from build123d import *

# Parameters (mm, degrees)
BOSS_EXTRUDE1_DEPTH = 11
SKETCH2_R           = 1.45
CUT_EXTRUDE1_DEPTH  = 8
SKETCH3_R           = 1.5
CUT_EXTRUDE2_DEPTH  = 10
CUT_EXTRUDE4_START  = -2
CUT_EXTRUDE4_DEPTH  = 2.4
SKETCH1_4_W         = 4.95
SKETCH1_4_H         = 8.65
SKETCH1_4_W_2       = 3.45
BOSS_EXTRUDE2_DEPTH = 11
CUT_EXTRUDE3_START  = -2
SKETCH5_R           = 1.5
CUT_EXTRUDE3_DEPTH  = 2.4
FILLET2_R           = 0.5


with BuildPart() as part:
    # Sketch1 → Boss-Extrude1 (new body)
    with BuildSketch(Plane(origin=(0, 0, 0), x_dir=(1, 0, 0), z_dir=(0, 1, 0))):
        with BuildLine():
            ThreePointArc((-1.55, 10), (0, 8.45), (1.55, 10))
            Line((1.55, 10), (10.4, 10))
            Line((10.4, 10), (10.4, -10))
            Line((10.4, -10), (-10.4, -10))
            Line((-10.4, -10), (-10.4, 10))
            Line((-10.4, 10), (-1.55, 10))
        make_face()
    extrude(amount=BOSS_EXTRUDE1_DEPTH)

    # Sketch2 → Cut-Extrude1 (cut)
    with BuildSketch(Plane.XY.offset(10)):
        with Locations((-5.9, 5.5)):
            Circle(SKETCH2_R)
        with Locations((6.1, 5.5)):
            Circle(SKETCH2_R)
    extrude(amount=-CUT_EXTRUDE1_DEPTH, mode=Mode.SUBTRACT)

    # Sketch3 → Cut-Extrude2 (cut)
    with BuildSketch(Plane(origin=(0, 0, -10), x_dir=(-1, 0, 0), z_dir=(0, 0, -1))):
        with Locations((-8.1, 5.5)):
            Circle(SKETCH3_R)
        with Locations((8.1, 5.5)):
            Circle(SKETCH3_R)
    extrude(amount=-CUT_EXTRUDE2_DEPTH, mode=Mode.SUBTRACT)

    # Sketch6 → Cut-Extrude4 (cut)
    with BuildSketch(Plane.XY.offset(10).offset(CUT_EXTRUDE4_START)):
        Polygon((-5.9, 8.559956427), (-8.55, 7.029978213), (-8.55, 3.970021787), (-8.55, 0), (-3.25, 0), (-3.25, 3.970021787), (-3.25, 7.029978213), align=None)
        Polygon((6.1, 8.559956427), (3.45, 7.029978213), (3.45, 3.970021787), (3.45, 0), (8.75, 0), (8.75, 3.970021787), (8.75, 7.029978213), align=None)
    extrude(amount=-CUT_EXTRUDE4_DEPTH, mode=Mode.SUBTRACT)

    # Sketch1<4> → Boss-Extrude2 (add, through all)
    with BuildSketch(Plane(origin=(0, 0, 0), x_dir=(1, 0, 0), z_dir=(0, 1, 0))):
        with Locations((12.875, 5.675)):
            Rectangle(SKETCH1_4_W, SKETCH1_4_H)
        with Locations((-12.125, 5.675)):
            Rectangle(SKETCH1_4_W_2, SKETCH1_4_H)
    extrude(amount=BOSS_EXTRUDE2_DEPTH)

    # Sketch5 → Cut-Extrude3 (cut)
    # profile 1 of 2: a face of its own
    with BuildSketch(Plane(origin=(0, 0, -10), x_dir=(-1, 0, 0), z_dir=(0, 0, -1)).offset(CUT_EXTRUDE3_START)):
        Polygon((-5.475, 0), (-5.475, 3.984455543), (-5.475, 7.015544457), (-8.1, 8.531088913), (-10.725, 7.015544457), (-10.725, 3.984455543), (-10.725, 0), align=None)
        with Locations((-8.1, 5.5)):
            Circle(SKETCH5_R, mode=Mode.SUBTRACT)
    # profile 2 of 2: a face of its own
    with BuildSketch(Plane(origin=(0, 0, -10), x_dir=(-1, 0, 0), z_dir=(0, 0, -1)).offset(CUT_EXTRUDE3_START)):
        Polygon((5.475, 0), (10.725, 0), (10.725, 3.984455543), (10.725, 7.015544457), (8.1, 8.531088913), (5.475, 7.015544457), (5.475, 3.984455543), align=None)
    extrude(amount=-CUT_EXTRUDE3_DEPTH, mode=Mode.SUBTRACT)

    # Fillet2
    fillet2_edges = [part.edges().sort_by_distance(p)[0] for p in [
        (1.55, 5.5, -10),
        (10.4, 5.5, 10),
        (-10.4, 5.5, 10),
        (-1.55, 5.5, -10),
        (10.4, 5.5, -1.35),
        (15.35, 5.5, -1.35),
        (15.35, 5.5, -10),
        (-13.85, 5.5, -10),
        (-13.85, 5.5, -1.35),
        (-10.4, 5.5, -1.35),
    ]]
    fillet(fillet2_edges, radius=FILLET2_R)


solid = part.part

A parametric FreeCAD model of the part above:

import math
import FreeCAD as App
import Part
import Sketcher
from FreeCAD import Vector
Q = App.Units.Quantity


def edges_at(feature, points):
    """Names of the edges that pass closest to the given points."""
    edges = feature.Shape.Edges
    near = lambda p: min(range(len(edges)), key=lambda i: edges[i].distToShape(Part.Vertex(*p))[0])
    return sorted({f"Edge{near(p) + 1}" for p in points})


def add_polygon(sketch, points):
    """Adds a closed chain of lines whose ends are joined by coincident constraints."""
    first, n = sketch.GeometryCount, len(points)
    for a, b in zip(points, points[1:] + points[:1]):
        sketch.addGeometry(Part.LineSegment(App.Vector(*a, 0), App.Vector(*b, 0)), False)
    for i in range(n):
        sketch.addConstraint(Sketcher.Constraint("Coincident", first + i, 2, first + (i + 1) % n, 1))

doc = App.newDocument("Part")
body = doc.addObject("PartDesign::Body", "Body")

sketch1 = body.newObject("Sketcher::SketchObject", "Sketch")
sketch1.AttachmentSupport = (doc.getObject("XZ_Plane"), [""])
sketch1.MapMode = "FlatFace"
sketch1.addGeometry(Part.ArcOfCircle(Part.Circle(Vector(0, -10, 0), Vector(0, 0, 1), 1.55), math.radians(0), math.radians(180)), False)
sketch1.addGeometry(Part.LineSegment(Vector(-1.55, -10, 0), Vector(-10.4, -10, 0)), False)
sketch1.addGeometry(Part.LineSegment(Vector(-10.4, -10, 0), Vector(-10.4, 10, 0)), False)
sketch1.addGeometry(Part.LineSegment(Vector(-10.4, 10, 0), Vector(10.4, 10, 0)), False)
sketch1.addGeometry(Part.LineSegment(Vector(10.4, 10, 0), Vector(10.4, -10, 0)), False)
sketch1.addGeometry(Part.LineSegment(Vector(10.4, -10, 0), Vector(1.55, -10, 0)), False)
sketch1.addConstraint(Sketcher.Constraint("Coincident", 0, 2, 1, 1))
sketch1.addConstraint(Sketcher.Constraint("Coincident", 1, 2, 2, 1))
sketch1.addConstraint(Sketcher.Constraint("Coincident", 2, 2, 3, 1))
sketch1.addConstraint(Sketcher.Constraint("Coincident", 3, 2, 4, 1))
sketch1.addConstraint(Sketcher.Constraint("Coincident", 4, 2, 5, 1))
sketch1.addConstraint(Sketcher.Constraint("Coincident", 5, 2, 0, 1))
sketch1.addConstraint(Sketcher.Constraint("Horizontal", 1))
sketch1.addConstraint(Sketcher.Constraint("Vertical", 2))
sketch1.addConstraint(Sketcher.Constraint("Horizontal", 3))
sketch1.addConstraint(Sketcher.Constraint("Vertical", 4))
sketch1.addConstraint(Sketcher.Constraint("Horizontal", 5))
sketch1.addConstraint(Sketcher.Constraint("Symmetric", 1, 2, 3, 2, -1, 1))
sketch1.addConstraint(Sketcher.Constraint("Symmetric", 0, 2, 5, 2, -2))
sketch1.addConstraint(Sketcher.Constraint("DistanceY", 2, 1, 2, 2, 20.0))
sketch1.addConstraint(Sketcher.Constraint("Radius", 0, 1.55))
sketch1.addConstraint(Sketcher.Constraint("DistanceX", 3, 1, 3, 2, 20.8))
sketch1.addConstraint(Sketcher.Constraint("DistanceY", 0, 3, -1, 1, 10.0))
pad1 = body.newObject("PartDesign::Pad", "Pad")
pad1.Profile = sketch1
pad1.Length = 11
pad1.Reversed = True

sketch2 = body.newObject("Sketcher::SketchObject", "Sketch001")
sketch2.AttachmentSupport = (doc.getObject("XY_Plane"), [""])
sketch2.MapMode = "FlatFace"
sketch2.AttachmentOffset = App.Placement(Vector(0, 0, 10), App.Rotation())
sketch2.addGeometry(Part.Circle(Vector(-5.9, 5.5, 0), Vector(0, 0, 1), 1.45), False)
sketch2.addGeometry(Part.Circle(Vector(6.1, 5.5, 0), Vector(0, 0, 1), 1.45), False)
sketch2.addConstraint(Sketcher.Constraint("Equal", 0, 1))
sketch2.addConstraint(Sketcher.Constraint("Horizontal", 0, 3, 1, 3))
sketch2.addConstraint(Sketcher.Constraint("Diameter", 0, 2.9))
sketch2.addConstraint(Sketcher.Constraint("DistanceX", 0, 3, 1, 3, 12.0))
sketch2.addConstraint(Sketcher.Constraint("DistanceX", 0, 3, -1, 1, 5.9))
sketch2.addConstraint(Sketcher.Constraint("DistanceY", -1, 1, 0, 3, 5.5))
pocket1 = body.newObject("PartDesign::Pocket", "Pocket")
pocket1.Profile = sketch2
pocket1.Length = 8

sketch3 = body.newObject("Sketcher::SketchObject", "Sketch002")
sketch3.AttachmentSupport = (doc.getObject("XY_Plane"), [""])
sketch3.MapMode = "FlatFace"
sketch3.AttachmentOffset = App.Placement(Vector(0, 0, -10), App.Rotation())
sketch3.addGeometry(Part.Circle(Vector(8.1, 5.5, 0), Vector(0, 0, 1), 1.5), False)
sketch3.addGeometry(Part.Circle(Vector(-8.1, 5.5, 0), Vector(0, 0, 1), 1.5), False)
sketch3.addConstraint(Sketcher.Constraint("Equal", 0, 1))
sketch3.addConstraint(Sketcher.Constraint("Symmetric", 0, 3, 1, 3, -2))
sketch3.addConstraint(Sketcher.Constraint("Diameter", 0, 3.0))
sketch3.addConstraint(Sketcher.Constraint("DistanceX", -1, 1, 0, 3, 8.1))
sketch3.addConstraint(Sketcher.Constraint("DistanceY", -1, 1, 0, 3, 5.5))
pocket2 = body.newObject("PartDesign::Pocket", "Pocket001")
pocket2.Profile = sketch3
pocket2.Length = 10
pocket2.Reversed = True

sketch4 = body.newObject("Sketcher::SketchObject", "Sketch003")
sketch4.AttachmentSupport = (doc.getObject("XY_Plane"), [""])
sketch4.MapMode = "FlatFace"
sketch4.AttachmentOffset = App.Placement(Vector(0, 0, 8), App.Rotation())
add_polygon(sketch4, [(-5.9, 8.559956), (-8.55, 7.029978), (-8.55, 0), (-3.25, 0), (-3.25, 7.029978)])
add_polygon(sketch4, [(6.1, 8.559956), (3.45, 7.029978), (3.45, 0), (8.75, 0), (8.75, 7.029978)])
sketch4.addConstraint(Sketcher.Constraint("Vertical", 1))
sketch4.addConstraint(Sketcher.Constraint("Horizontal", 2))
sketch4.addConstraint(Sketcher.Constraint("Vertical", 3))
sketch4.addConstraint(Sketcher.Constraint("Vertical", 6))
sketch4.addConstraint(Sketcher.Constraint("Horizontal", 7))
sketch4.addConstraint(Sketcher.Constraint("Vertical", 8))
sketch4.addConstraint(Sketcher.Constraint("PointOnObject", 1, 2, -1))
sketch4.addConstraint(Sketcher.Constraint("PointOnObject", 6, 2, -1))
sketch4.addConstraint(Sketcher.Constraint("Parallel", 0, 5))
sketch4.addConstraint(Sketcher.Constraint("Parallel", 4, 9))
sketch4.addConstraint(Sketcher.Constraint("Horizontal", 0, 2, 3, 2))
sketch4.addConstraint(Sketcher.Constraint("Horizontal", 3, 2, 5, 2))
sketch4.addConstraint(Sketcher.Constraint("Horizontal", 5, 2, 8, 2))
sketch4.addConstraint(Sketcher.Constraint("Horizontal", 4, 2, 9, 2))
sketch4.addConstraint(Sketcher.Constraint("Equal", 0, 4))
sketch4.addConstraint(Sketcher.Constraint("Angle", 0, Q("-150 deg")))
sketch4.addConstraint(Sketcher.Constraint("DistanceX", 2, 1, 2, 2, 5.3))
sketch4.addConstraint(Sketcher.Constraint("DistanceX", 0, 2, 5, 2, 12.0))
sketch4.addConstraint(Sketcher.Constraint("DistanceX", 4, 2, -1, 1, 5.9))
sketch4.addConstraint(Sketcher.Constraint("DistanceY", 1, 2, 1, 1, 7.029978))
pocket3 = body.newObject("PartDesign::Pocket", "Pocket002")
pocket3.Profile = sketch4
pocket3.Length = 2.4

sketch5 = body.newObject("Sketcher::SketchObject", "Sketch004")
sketch5.AttachmentSupport = (doc.getObject("XZ_Plane"), [""])
sketch5.MapMode = "FlatFace"
add_polygon(sketch5, [(10.4, -10), (10.4, -1.35), (15.35, -1.35), (15.35, -10)])
add_polygon(sketch5, [(-13.85, -10), (-13.85, -1.35), (-10.4, -1.35), (-10.4, -10)])
sketch5.addConstraint(Sketcher.Constraint("Vertical", 0))
sketch5.addConstraint(Sketcher.Constraint("Horizontal", 1))
sketch5.addConstraint(Sketcher.Constraint("Vertical", 2))
sketch5.addConstraint(Sketcher.Constraint("Horizontal", 3))
sketch5.addConstraint(Sketcher.Constraint("Vertical", 4))
sketch5.addConstraint(Sketcher.Constraint("Horizontal", 5))
sketch5.addConstraint(Sketcher.Constraint("Vertical", 6))
sketch5.addConstraint(Sketcher.Constraint("Horizontal", 7))
sketch5.addConstraint(Sketcher.Constraint("Symmetric", 0, 2, 5, 2, -2))
sketch5.addConstraint(Sketcher.Constraint("Horizontal", 3, 2, 6, 2))
sketch5.addConstraint(Sketcher.Constraint("DistanceY", 2, 2, -1, 1, 10.0))
sketch5.addConstraint(Sketcher.Constraint("DistanceX", 1, 1, 1, 2, 4.95))
sketch5.addConstraint(Sketcher.Constraint("DistanceX", 5, 1, 5, 2, 3.45))
sketch5.addConstraint(Sketcher.Constraint("DistanceY", 0, 1, 0, 2, 8.65))
sketch5.addConstraint(Sketcher.Constraint("DistanceX", -1, 1, 0, 2, 10.4))
pad2 = body.newObject("PartDesign::Pad", "Pad001")
pad2.Profile = sketch5
pad2.Type = "UpToLast"
pad2.Reversed = True

sketch6 = body.newObject("Sketcher::SketchObject", "Sketch005")
sketch6.AttachmentSupport = (doc.getObject("XY_Plane"), [""])
sketch6.MapMode = "FlatFace"
sketch6.AttachmentOffset = App.Placement(Vector(0, 0, -8), App.Rotation())
add_polygon(sketch6, [(5.475, 0), (5.475, 7.015544), (8.1, 8.531089), (10.725, 7.015544), (10.725, 0)])
sketch6.addGeometry(Part.Circle(Vector(8.1, 5.5, 0), Vector(0, 0, 1), 1.5), False)
add_polygon(sketch6, [(-5.475, 0), (-10.725, 0), (-10.725, 7.015544), (-8.1, 8.531089), (-5.475, 7.015544)])
sketch6.addConstraint(Sketcher.Constraint("Vertical", 0))
sketch6.addConstraint(Sketcher.Constraint("Vertical", 3))
sketch6.addConstraint(Sketcher.Constraint("Horizontal", 4))
sketch6.addConstraint(Sketcher.Constraint("Horizontal", 6))
sketch6.addConstraint(Sketcher.Constraint("Vertical", 7))
sketch6.addConstraint(Sketcher.Constraint("Vertical", 10))
sketch6.addConstraint(Sketcher.Constraint("Symmetric", 3, 2, 6, 2, -1, 1))
sketch6.addConstraint(Sketcher.Constraint("Symmetric", 1, 2, 8, 2, -2))
sketch6.addConstraint(Sketcher.Constraint("Symmetric", 0, 2, 9, 2, -2))
sketch6.addConstraint(Sketcher.Constraint("PointOnObject", 3, 2, -1))
sketch6.addConstraint(Sketcher.Constraint("Parallel", 1, 8))
sketch6.addConstraint(Sketcher.Constraint("Parallel", 2, 9))
sketch6.addConstraint(Sketcher.Constraint("Horizontal", 0, 2, 2, 2))
sketch6.addConstraint(Sketcher.Constraint("Vertical", 5, 3, 1, 2))
sketch6.addConstraint(Sketcher.Constraint("Diameter", 5, 3.0))
sketch6.addConstraint(Sketcher.Constraint("Angle", 1, Q("30 deg")))
sketch6.addConstraint(Sketcher.Constraint("DistanceX", 4, 2, 4, 1, 5.25))
sketch6.addConstraint(Sketcher.Constraint("DistanceX", -1, 1, 5, 3, 8.1))
sketch6.addConstraint(Sketcher.Constraint("DistanceY", -1, 1, 5, 3, 5.5))
sketch6.addConstraint(Sketcher.Constraint("DistanceY", 0, 1, 0, 2, 7.015544))
pocket4 = body.newObject("PartDesign::Pocket", "Pocket003")
pocket4.Profile = sketch6
pocket4.Length = 2.4
pocket4.Reversed = True
doc.recompute()

fillet = body.newObject("PartDesign::Fillet", "Fillet")
fillet.Base = (pocket4, edges_at(pocket4, [
    (1.55, 5.5, -10),
    (10.4, 5.5, 10),
    (-10.4, 5.5, 10),
    (-1.55, 5.5, -10),
    (10.4, 5.5, -1.35),
    (15.35, 5.5, -1.35),
    (15.35, 5.5, -10),
    (-13.85, 5.5, -10),
    (-13.85, 5.5, -1.35),
    (-10.4, 5.5, -1.35),
]))
fillet.Radius = 0.5

doc.recompute()
